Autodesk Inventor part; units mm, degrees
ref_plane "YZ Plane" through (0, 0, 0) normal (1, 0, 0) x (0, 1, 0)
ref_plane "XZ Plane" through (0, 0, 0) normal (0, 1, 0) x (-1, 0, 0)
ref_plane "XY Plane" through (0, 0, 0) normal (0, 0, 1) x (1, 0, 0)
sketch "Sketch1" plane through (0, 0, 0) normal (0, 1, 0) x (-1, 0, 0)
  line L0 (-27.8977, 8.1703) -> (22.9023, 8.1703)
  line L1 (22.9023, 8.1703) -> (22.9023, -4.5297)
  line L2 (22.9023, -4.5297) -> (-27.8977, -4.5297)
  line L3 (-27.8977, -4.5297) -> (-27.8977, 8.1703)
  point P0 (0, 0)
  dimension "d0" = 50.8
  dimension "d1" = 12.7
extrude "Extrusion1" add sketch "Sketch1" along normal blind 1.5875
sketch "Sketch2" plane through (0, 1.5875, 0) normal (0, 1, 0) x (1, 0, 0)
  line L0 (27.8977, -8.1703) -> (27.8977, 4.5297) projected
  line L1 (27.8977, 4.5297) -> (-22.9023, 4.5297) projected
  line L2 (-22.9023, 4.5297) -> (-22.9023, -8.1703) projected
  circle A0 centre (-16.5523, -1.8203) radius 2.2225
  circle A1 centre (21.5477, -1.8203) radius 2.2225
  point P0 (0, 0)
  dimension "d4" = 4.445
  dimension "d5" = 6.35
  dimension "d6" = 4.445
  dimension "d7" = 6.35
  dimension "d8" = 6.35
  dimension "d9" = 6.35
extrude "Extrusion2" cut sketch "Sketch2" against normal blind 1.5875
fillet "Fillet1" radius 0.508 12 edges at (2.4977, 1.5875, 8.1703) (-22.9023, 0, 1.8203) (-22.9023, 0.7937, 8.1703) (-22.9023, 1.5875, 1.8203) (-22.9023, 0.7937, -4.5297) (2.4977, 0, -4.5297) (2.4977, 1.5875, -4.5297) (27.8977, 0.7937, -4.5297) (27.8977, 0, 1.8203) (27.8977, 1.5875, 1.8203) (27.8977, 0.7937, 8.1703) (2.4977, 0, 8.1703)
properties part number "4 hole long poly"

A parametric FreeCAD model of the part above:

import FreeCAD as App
import Part
import Sketcher
from FreeCAD import Vector
Q = App.Units.Quantity


def edges_at(feature, points):
    """Names of the edges that pass closest to the given points."""
    edges = feature.Shape.Edges
    near = lambda p: min(range(len(edges)), key=lambda i: edges[i].distToShape(Part.Vertex(*p))[0])
    return sorted({f"Edge{near(p) + 1}" for p in points})


def add_polygon(sketch, points):
    """Adds a closed chain of lines whose ends are joined by coincident constraints."""
    first, n = sketch.GeometryCount, len(points)
    for a, b in zip(points, points[1:] + points[:1]):
        sketch.addGeometry(Part.LineSegment(App.Vector(*a, 0), App.Vector(*b, 0)), False)
    for i in range(n):
        sketch.addConstraint(Sketcher.Constraint("Coincident", first + i, 2, first + (i + 1) % n, 1))

doc = App.newDocument("Part")
body = doc.addObject("PartDesign::Body", "Body")

sketch1 = body.newObject("Sketcher::SketchObject", "Sketch")
sketch1.AttachmentSupport = (doc.getObject("XZ_Plane"), [""])
sketch1.MapMode = "FlatFace"
add_polygon(sketch1, [(-22.9023, 8.1703), (27.8977, 8.1703), (27.8977, -4.5297), (-22.9023, -4.5297)])
sketch1.addConstraint([
    Sketcher.Constraint("Horizontal", 0),
    Sketcher.Constraint("Vertical", 1),
    Sketcher.Constraint("Horizontal", 2),
    Sketcher.Constraint("Vertical", 3),
    Sketcher.Constraint("DistanceX", 0, 1, 0, 2, Q("2 in")),
    Sketcher.Constraint("DistanceY", 1, 2, 1, 1, Q("0.5 in")),
    Sketcher.Constraint("DistanceX", -1, 1, 0, 2, Q("27.8977 mm")),
    Sketcher.Constraint("DistanceY", -1, 1, 0, 2, Q("8.1703 mm")),
])
pad1 = body.newObject("PartDesign::Pad", "Pad")
pad1.Profile = sketch1
pad1.Length = Q("0.0625 in")
pad1.Reversed = True

sketch2 = body.newObject("Sketcher::SketchObject", "Sketch001")
sketch2.AttachmentSupport = (doc.getObject("XZ_Plane"), [""])
sketch2.MapMode = "FlatFace"
sketch2.AttachmentOffset = App.Placement(Vector(0, 0, -0.0625 * 25.4), App.Rotation())
sketch2.addGeometry([
    Part.Circle(Vector(-16.5523, 1.8203, 0), Vector(0, 0, 1), 2.2225),
    Part.Circle(Vector(21.5477, 1.8203, 0), Vector(0, 0, 1), 2.2225),
], False)
sketch2.addConstraint([
    Sketcher.Constraint("Equal", 0, 1),
    Sketcher.Constraint("Horizontal", 0, 3, 1, 3),
    Sketcher.Constraint("Diameter", 0, Q("0.175 in")),
    Sketcher.Constraint("DistanceX", 0, 3, 1, 3, Q("1.5 in")),
    Sketcher.Constraint("DistanceX", 0, 3, -1, 1, Q("16.5523 mm")),
    Sketcher.Constraint("DistanceY", -1, 1, 0, 3, Q("1.8203 mm")),
])
pocket1 = body.newObject("PartDesign::Pocket", "Pocket")
pocket1.Profile = sketch2
pocket1.Length = Q("0.0625 in")
pocket1.Reversed = True
doc.recompute()

fillet = body.newObject("PartDesign::Fillet", "Fillet")
fillet.Base = (pocket1, edges_at(pocket1, [
    (2.498, 1.587, 8.17),
    (-22.902, 0, 1.82),
    (-22.902, 0.794, 8.17),
    (-22.902, 1.587, 1.82),
    (-22.902, 0.794, -4.53),
    (2.498, 0, -4.53),
    (2.498, 1.587, -4.53),
    (27.898, 0.794, -4.53),
    (27.898, 0, 1.82),
    (27.898, 1.587, 1.82),
    (27.898, 0.794, 8.17),
    (2.498, 0, 8.17),
]))
fillet.Radius = Q("0.02 in")

doc.recompute()
